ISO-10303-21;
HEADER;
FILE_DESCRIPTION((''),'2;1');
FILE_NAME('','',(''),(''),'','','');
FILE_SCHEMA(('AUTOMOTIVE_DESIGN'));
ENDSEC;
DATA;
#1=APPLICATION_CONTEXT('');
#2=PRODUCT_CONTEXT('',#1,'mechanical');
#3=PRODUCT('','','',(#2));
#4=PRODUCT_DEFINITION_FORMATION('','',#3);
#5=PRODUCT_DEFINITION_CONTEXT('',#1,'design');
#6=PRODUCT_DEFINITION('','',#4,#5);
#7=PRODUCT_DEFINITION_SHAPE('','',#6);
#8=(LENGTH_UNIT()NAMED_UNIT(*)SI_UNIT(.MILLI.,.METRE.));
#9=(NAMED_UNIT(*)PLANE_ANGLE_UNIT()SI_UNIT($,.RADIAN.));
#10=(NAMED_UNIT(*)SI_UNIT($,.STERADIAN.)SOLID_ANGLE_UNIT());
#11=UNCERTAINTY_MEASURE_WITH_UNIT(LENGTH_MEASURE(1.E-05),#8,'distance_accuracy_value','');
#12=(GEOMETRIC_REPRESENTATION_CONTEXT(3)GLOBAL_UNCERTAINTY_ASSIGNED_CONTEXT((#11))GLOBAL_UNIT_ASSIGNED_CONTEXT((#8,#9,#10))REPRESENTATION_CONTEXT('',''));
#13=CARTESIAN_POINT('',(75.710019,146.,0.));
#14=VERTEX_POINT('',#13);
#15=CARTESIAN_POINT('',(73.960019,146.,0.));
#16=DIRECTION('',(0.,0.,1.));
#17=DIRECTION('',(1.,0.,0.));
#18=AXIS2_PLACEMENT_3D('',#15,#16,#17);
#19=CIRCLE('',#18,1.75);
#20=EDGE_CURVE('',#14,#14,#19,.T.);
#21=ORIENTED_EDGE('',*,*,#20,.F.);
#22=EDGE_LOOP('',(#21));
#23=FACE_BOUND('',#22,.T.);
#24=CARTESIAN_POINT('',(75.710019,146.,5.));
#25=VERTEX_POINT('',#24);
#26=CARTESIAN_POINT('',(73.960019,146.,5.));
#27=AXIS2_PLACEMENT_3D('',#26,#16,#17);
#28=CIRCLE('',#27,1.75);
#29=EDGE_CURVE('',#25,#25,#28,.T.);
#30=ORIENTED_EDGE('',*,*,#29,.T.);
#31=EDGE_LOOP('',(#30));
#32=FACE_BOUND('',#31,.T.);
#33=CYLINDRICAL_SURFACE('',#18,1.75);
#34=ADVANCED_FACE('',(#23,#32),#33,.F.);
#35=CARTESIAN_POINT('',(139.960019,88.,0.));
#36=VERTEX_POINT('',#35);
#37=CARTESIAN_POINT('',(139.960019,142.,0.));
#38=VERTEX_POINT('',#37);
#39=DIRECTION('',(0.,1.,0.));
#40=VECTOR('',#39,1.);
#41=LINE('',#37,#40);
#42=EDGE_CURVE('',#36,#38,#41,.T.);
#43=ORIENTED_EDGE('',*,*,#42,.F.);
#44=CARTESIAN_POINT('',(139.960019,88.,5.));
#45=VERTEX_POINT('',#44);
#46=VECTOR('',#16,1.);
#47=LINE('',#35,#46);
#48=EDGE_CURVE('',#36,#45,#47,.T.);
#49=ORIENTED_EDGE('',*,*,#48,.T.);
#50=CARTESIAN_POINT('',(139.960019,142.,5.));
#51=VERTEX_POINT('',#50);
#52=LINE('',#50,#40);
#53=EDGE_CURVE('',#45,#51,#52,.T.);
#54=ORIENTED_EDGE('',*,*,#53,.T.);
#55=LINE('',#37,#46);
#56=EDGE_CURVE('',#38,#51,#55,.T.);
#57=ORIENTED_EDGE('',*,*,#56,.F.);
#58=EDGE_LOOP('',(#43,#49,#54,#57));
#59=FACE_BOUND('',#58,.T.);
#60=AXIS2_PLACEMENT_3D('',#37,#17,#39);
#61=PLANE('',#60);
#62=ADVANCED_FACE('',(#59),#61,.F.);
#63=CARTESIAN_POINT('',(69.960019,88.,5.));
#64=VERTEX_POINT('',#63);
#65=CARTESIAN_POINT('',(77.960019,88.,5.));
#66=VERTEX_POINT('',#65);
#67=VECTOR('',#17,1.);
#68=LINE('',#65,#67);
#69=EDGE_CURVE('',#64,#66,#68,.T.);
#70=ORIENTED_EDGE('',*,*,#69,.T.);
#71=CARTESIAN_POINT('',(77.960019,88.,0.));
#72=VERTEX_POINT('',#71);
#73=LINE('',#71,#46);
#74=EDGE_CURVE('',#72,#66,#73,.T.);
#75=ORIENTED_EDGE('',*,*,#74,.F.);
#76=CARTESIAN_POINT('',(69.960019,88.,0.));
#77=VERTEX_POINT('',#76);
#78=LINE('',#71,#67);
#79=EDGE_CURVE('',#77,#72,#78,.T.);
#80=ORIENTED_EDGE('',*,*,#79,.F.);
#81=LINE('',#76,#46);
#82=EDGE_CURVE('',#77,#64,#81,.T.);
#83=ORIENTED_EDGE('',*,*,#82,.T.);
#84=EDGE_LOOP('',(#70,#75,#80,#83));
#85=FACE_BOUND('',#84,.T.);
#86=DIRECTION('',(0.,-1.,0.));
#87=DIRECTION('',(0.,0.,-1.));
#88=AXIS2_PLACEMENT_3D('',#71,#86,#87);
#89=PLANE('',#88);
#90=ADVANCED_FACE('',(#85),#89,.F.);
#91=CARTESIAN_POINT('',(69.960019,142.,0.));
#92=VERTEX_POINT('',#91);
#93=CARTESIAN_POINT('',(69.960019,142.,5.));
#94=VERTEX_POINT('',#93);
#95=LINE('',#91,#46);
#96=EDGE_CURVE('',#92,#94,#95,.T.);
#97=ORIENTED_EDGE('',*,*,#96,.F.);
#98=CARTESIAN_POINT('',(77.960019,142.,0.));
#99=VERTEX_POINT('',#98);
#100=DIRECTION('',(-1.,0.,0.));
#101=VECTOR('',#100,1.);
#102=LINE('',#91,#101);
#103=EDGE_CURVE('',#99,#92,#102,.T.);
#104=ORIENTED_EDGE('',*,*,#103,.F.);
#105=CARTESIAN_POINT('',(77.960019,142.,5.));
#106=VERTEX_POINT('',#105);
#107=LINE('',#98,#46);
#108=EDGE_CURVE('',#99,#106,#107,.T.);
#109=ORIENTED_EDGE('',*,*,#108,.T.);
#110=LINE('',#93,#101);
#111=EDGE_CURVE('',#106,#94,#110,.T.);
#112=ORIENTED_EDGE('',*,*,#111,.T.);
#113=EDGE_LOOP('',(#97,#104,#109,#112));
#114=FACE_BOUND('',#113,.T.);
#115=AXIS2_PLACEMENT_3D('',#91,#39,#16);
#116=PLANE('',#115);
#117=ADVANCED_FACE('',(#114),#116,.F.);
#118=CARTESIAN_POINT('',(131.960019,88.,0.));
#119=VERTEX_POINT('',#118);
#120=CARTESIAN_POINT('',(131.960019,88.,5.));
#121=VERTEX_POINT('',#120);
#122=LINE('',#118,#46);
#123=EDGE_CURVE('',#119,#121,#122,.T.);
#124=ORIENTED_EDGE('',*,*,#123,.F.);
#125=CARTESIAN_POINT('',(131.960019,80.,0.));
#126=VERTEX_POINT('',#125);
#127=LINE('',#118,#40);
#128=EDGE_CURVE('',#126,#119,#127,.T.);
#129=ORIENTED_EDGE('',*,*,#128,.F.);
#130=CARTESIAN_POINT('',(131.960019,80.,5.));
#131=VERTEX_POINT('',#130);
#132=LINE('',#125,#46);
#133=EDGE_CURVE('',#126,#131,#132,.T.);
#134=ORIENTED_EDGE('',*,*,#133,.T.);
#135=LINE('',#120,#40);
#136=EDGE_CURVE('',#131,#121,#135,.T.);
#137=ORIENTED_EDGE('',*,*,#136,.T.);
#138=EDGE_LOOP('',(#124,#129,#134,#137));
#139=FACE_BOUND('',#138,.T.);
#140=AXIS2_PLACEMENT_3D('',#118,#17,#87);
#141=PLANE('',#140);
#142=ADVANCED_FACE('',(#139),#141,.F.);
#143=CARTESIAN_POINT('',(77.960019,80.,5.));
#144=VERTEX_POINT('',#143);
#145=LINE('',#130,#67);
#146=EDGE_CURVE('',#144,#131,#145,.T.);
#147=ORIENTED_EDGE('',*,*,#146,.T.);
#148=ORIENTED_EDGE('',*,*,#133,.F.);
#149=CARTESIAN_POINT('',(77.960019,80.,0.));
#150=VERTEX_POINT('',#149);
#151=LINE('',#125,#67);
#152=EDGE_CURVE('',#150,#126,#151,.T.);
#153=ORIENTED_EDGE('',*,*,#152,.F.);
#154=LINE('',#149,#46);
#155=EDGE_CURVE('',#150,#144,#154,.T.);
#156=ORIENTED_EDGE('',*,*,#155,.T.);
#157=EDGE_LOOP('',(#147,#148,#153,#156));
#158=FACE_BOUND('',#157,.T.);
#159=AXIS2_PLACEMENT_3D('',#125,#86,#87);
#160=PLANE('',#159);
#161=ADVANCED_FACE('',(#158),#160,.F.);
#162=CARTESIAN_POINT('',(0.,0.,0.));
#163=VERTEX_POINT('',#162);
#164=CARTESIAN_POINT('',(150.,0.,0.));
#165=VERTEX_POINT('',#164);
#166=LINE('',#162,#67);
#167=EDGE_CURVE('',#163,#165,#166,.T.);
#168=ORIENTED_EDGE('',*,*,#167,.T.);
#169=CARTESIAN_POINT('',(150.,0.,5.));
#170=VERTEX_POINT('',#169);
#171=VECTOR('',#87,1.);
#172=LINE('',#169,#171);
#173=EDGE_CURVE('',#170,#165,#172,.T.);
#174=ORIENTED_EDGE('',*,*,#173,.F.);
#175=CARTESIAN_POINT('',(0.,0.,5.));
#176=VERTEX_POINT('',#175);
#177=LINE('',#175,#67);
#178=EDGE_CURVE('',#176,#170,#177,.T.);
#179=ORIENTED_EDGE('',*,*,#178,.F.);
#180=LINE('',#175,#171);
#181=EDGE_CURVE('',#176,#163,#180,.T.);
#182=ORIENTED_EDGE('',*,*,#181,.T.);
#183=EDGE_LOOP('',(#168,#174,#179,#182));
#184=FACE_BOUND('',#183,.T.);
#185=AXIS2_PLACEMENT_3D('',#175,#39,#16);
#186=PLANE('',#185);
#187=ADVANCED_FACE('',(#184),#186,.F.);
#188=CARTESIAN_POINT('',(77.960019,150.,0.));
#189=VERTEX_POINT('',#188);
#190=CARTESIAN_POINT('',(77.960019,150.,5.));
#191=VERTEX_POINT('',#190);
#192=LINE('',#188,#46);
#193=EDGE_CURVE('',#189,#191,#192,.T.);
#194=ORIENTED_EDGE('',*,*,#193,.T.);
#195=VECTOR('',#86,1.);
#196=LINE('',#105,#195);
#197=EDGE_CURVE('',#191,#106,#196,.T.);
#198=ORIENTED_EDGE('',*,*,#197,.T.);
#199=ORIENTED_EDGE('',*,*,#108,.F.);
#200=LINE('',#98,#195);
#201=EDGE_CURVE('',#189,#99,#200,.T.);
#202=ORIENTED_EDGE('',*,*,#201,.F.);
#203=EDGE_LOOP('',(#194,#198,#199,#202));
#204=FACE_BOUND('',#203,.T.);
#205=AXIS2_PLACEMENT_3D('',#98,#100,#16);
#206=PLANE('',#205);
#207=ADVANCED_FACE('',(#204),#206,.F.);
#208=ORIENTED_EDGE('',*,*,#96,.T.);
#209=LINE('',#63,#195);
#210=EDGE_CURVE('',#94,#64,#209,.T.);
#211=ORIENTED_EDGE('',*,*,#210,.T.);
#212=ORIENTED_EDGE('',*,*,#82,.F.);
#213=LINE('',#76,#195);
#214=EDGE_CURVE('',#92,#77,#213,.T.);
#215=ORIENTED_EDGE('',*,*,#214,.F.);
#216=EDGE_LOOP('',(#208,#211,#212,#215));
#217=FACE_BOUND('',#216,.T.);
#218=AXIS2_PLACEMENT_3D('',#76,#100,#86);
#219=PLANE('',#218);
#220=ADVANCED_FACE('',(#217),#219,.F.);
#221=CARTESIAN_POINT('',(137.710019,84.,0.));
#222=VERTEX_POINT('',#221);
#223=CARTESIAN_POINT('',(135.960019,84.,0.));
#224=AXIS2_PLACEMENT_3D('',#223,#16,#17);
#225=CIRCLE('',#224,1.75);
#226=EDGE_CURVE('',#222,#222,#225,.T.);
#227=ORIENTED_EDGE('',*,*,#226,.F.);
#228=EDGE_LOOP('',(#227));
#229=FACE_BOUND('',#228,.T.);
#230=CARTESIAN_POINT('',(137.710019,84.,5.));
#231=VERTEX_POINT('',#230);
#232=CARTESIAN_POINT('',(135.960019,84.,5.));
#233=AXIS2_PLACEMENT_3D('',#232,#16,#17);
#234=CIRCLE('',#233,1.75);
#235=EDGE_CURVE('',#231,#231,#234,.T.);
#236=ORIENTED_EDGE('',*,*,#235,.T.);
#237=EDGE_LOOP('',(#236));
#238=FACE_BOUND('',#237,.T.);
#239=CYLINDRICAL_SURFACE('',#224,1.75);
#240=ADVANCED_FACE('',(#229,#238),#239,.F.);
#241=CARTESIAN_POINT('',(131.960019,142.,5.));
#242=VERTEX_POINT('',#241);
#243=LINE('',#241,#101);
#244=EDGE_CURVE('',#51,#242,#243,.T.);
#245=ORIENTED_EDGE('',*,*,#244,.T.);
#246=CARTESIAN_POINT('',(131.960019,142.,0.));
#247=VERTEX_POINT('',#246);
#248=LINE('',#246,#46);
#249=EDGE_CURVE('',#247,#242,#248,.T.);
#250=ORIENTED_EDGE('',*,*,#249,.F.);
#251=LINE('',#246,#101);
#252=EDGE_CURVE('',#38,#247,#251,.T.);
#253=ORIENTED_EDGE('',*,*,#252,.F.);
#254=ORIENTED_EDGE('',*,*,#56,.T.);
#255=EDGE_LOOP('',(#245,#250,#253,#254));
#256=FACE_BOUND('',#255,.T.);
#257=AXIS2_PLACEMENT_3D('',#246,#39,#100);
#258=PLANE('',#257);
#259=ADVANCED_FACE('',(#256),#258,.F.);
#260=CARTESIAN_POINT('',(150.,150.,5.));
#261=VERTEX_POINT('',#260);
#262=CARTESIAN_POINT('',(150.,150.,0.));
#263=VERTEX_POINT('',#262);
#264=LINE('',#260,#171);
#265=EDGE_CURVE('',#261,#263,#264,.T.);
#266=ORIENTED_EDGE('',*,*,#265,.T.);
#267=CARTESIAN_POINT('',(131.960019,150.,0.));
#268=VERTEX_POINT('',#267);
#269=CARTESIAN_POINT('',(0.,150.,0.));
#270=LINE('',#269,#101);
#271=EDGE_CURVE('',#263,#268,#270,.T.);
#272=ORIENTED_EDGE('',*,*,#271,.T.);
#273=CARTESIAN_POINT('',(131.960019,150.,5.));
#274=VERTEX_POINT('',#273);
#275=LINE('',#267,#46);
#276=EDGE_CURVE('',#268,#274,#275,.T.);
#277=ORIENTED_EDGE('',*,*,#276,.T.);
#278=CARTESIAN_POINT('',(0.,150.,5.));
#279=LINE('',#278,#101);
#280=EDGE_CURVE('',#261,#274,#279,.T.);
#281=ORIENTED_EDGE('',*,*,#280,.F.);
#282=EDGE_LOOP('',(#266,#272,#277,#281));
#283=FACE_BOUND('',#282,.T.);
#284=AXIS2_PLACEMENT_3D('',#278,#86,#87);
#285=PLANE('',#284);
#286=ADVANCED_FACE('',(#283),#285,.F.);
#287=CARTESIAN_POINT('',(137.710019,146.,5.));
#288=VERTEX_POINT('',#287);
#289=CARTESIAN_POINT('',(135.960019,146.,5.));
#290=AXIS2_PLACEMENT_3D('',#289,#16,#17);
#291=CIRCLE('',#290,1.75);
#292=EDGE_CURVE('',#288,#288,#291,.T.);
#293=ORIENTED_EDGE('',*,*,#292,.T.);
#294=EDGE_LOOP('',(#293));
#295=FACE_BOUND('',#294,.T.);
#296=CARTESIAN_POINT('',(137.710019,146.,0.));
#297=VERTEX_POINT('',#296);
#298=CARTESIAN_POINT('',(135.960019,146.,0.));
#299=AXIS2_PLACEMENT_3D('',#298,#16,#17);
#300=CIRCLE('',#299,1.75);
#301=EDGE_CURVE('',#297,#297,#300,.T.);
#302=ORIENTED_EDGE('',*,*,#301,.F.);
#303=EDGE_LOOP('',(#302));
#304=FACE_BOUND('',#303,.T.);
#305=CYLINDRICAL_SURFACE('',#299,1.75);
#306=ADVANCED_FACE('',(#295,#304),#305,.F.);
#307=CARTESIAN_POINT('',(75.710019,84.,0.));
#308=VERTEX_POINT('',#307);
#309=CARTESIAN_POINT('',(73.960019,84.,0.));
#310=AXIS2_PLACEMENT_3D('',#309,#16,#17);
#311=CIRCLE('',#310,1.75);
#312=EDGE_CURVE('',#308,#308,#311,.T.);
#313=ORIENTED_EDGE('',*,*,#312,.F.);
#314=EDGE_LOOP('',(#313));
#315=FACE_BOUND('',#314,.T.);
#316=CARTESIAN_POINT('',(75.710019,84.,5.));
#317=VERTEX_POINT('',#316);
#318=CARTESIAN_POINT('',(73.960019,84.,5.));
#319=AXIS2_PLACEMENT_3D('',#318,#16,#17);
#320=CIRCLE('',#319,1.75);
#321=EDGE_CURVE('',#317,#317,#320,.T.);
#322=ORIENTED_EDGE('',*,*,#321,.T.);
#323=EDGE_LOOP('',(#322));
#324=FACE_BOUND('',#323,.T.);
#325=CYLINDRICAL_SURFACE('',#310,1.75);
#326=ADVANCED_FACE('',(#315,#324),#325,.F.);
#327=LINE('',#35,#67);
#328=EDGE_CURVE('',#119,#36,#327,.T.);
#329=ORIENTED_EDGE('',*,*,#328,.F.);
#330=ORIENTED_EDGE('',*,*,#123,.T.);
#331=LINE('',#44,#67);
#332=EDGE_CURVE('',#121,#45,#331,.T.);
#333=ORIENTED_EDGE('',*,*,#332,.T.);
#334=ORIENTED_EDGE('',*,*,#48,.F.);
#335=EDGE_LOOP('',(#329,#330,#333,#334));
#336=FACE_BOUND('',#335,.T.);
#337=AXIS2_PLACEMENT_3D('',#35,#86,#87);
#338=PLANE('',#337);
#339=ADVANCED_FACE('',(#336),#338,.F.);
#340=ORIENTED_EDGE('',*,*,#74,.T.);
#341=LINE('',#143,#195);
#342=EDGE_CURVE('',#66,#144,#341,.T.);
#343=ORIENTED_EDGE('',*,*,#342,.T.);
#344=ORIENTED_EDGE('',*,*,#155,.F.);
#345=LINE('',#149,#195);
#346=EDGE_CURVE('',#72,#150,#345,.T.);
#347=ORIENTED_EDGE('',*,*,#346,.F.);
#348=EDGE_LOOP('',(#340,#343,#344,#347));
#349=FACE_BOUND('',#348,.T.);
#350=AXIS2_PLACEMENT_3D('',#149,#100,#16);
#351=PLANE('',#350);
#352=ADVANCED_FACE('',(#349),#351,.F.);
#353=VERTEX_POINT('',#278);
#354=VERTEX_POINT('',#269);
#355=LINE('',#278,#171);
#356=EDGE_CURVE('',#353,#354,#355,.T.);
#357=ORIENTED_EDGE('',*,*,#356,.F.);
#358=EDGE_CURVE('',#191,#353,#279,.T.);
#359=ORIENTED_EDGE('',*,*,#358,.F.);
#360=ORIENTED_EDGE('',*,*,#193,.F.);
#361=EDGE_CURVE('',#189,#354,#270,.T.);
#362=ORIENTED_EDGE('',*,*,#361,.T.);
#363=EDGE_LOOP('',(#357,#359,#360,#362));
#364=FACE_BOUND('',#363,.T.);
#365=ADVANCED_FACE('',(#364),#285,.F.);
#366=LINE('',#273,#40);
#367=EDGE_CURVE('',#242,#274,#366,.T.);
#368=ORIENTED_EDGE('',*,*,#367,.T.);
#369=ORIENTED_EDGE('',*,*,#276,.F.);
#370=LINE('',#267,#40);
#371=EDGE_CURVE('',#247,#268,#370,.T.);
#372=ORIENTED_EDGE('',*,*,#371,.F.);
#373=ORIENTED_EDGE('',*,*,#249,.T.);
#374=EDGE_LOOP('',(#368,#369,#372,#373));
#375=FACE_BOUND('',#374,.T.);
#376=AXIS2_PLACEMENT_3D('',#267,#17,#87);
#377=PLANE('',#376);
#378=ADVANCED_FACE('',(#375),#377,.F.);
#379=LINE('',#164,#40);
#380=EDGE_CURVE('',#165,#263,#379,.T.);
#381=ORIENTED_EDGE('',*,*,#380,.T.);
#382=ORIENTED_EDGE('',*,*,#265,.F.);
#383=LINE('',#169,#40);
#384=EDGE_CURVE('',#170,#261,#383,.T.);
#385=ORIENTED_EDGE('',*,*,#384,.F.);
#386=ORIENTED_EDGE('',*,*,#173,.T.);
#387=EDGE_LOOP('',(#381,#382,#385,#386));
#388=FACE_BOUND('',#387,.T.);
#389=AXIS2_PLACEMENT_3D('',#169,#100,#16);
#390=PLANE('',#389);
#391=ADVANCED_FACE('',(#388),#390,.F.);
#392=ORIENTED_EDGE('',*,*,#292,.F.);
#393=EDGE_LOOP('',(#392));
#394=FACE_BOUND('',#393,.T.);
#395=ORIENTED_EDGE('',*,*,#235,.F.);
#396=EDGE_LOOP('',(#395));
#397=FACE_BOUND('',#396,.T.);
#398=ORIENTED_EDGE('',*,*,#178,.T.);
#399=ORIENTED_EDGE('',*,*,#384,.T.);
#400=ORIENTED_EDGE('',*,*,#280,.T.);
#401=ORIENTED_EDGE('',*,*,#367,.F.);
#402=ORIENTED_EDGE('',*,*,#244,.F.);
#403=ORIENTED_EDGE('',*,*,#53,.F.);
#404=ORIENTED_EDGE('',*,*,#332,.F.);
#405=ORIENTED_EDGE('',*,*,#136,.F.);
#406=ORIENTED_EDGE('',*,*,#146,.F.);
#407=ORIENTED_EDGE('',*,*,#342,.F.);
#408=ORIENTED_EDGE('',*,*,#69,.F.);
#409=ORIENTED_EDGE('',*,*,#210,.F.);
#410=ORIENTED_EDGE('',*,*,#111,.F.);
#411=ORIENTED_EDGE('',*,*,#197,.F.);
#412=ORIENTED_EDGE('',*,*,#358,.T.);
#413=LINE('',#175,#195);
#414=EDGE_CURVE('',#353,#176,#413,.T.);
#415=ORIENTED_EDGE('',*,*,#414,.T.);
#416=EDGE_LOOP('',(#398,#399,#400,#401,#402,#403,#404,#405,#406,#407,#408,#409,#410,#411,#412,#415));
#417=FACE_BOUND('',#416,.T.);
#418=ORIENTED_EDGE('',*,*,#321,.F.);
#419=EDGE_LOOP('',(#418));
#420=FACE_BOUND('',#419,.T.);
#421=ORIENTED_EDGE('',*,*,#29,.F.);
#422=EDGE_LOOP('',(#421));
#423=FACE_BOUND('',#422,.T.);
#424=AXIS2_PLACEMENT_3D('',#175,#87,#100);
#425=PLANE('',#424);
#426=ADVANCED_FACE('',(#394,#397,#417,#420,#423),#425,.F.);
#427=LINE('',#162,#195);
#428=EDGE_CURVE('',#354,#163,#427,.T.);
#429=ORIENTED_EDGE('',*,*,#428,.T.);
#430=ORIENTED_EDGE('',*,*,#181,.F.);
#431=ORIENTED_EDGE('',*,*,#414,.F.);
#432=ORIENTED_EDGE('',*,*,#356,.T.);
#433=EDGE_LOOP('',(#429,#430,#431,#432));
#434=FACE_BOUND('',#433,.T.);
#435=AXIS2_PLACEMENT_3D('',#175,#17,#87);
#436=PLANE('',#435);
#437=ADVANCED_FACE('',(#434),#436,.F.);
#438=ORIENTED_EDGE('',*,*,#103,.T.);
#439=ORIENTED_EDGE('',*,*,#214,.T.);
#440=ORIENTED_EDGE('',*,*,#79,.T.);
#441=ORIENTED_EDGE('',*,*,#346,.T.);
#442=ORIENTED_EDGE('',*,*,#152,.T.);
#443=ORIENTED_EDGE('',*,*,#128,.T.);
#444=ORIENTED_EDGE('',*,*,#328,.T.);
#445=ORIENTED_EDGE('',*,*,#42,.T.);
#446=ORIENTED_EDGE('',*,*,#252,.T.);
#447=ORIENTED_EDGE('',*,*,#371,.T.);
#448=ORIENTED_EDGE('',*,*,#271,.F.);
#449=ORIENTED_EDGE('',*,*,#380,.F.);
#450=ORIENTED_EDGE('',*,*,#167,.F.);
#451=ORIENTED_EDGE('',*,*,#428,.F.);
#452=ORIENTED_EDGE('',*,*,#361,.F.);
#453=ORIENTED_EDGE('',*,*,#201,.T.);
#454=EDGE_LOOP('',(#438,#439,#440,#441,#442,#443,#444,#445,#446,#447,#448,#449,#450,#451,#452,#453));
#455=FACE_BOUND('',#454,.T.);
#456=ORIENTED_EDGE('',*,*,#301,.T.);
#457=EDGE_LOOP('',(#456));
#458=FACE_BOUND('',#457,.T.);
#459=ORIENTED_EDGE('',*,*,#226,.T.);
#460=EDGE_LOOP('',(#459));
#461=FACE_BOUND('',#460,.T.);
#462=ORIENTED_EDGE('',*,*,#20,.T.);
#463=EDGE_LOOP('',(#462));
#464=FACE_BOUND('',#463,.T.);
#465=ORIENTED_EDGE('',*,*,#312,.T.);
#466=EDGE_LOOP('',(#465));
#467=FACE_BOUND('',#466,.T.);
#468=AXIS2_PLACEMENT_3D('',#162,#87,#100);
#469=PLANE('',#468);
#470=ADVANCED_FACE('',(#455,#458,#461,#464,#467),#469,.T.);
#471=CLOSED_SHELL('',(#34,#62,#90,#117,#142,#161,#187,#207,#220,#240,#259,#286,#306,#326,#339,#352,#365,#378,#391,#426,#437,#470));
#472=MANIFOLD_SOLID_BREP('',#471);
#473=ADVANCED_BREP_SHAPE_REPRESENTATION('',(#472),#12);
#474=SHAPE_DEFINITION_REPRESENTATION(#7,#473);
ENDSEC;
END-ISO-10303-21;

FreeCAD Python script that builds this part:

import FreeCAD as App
import Part
import Sketcher
from FreeCAD import Vector

doc = App.newDocument("Part")
body = doc.addObject("PartDesign::Body", "Body")

# Sketch on XY plane
sketch1 = doc.addObject("Sketcher::SketchObject", "Sketch")
body.addObject(sketch1)
sketch1.AttachmentSupport = (doc.XY_Plane, [""])
sketch1.MapMode = "FlatFace"
sketch1.addGeometry([
    Part.LineSegment(Vector(0, 150, 0), Vector(0, 0, 0)),
    Part.LineSegment(Vector(0, 0, 0), Vector(150, 0, 0)),
    Part.LineSegment(Vector(150, 0, 0), Vector(150, 150, 0)),
    Part.LineSegment(Vector(150, 150, 0), Vector(0, 150, 0)),
], False)
sketch1.addConstraint([
    Sketcher.Constraint("Coincident", 0, 2, 1, 1),
    Sketcher.Constraint("Coincident", 1, 2, 2, 1),
    Sketcher.Constraint("Coincident", 2, 2, 3, 1),
    Sketcher.Constraint("Coincident", 3, 2, 0, 1),
    Sketcher.Constraint("Vertical", 0),
    Sketcher.Constraint("Horizontal", 1),
    Sketcher.Constraint("Vertical", 2),
    Sketcher.Constraint("Horizontal", 3),
    Sketcher.Constraint("Coincident", 0, 2, -1, 1),
    Sketcher.Constraint("Equal", 3, 0),
    Sketcher.Constraint("DistanceX", 1, 1, 1, 2, 150.0),
])
pad1 = doc.addObject("PartDesign::Pad", "Pad")
body.addObject(pad1)
pad1.Profile = sketch1
pad1.Length = 5

# Sketch on XY plane
sketch2 = doc.addObject("Sketcher::SketchObject", "Sketch001")
body.addObject(sketch2)
sketch2.AttachmentSupport = (doc.XY_Plane, [""])
sketch2.MapMode = "FlatFace"
sketch2.AttachmentOffset = App.Placement(Vector(0, 0, 5), App.Rotation())
sketch2.addGeometry([
    Part.Circle(Vector(74, 84, 0), Vector(0, 0, 1), 1.8),  # 0
    Part.Circle(Vector(74, 146, 0), Vector(0, 0, 1), 1.8),  # 1
    Part.Circle(Vector(136, 146, 0), Vector(0, 0, 1), 1.8),  # 2
    Part.Circle(Vector(136, 84, 0), Vector(0, 0, 1), 1.8),  # 3
    Part.LineSegment(Vector(132, 150, 0), Vector(78, 150, 0)),  # 4
    Part.LineSegment(Vector(78, 150, 0), Vector(78, 142, 0)),  # 5
    Part.LineSegment(Vector(78, 142, 0), Vector(70, 142, 0)),  # 6
    Part.LineSegment(Vector(70, 142, 0), Vector(70, 88, 0)),  # 7
    Part.LineSegment(Vector(70, 88, 0), Vector(78, 88, 0)),  # 8
    Part.LineSegment(Vector(78, 88, 0), Vector(78, 80, 0)),  # 9
    Part.LineSegment(Vector(78, 80, 0), Vector(132, 80, 0)),  # 10
    Part.LineSegment(Vector(132, 80, 0), Vector(132, 88, 0)),  # 11
    Part.LineSegment(Vector(132, 88, 0), Vector(140, 88, 0)),  # 12
    Part.LineSegment(Vector(140, 88, 0), Vector(140, 142, 0)),  # 13
    Part.LineSegment(Vector(140, 142, 0), Vector(132, 142, 0)),  # 14
    Part.LineSegment(Vector(132, 142, 0), Vector(132, 150, 0)),  # 15
], False)
sketch2.addConstraint([
    Sketcher.Constraint("Coincident", 4, 2, 5, 1),
    Sketcher.Constraint("Coincident", 5, 2, 6, 1),
    Sketcher.Constraint("Coincident", 6, 2, 7, 1),
    Sketcher.Constraint("Coincident", 7, 2, 8, 1),
    Sketcher.Constraint("Coincident", 8, 2, 9, 1),
    Sketcher.Constraint("Coincident", 9, 2, 10, 1),
    Sketcher.Constraint("Coincident", 10, 2, 11, 1),
    Sketcher.Constraint("Coincident", 11, 2, 12, 1),
    Sketcher.Constraint("Coincident", 12, 2, 13, 1),
    Sketcher.Constraint("Coincident", 13, 2, 14, 1),
    Sketcher.Constraint("Coincident", 14, 2, 15, 1),
    Sketcher.Constraint("Coincident", 15, 2, 4, 1),
    Sketcher.Constraint("Horizontal", 4),
    Sketcher.Constraint("Vertical", 5),
    Sketcher.Constraint("Horizontal", 6),
    Sketcher.Constraint("Vertical", 7),
    Sketcher.Constraint("Horizontal", 8),
    Sketcher.Constraint("Vertical", 9),
    Sketcher.Constraint("Horizontal", 10),
    Sketcher.Constraint("Vertical", 11),
    Sketcher.Constraint("Horizontal", 12),
    Sketcher.Constraint("Vertical", 13),
    Sketcher.Constraint("Horizontal", 14),
    Sketcher.Constraint("Vertical", 15),
    Sketcher.Constraint("Equal", 0, 1),
    Sketcher.Constraint("Equal", 1, 2),
    Sketcher.Constraint("Equal", 2, 3),
    Sketcher.Constraint("Horizontal", 1, 3, 2, 3),
    Sketcher.Constraint("Horizontal", 0, 3, 3, 3),
    Sketcher.Constraint("Horizontal", 8, 2, 11, 2),
    Sketcher.Constraint("Horizontal", 6, 2, 13, 2),
    Sketcher.Constraint("Vertical", 0, 3, 1, 3),
    Sketcher.Constraint("Vertical", 2, 3, 3, 3),
    Sketcher.Constraint("Vertical", 5, 2, 8, 2),
    Sketcher.Constraint("Vertical", 11, 2, 14, 2),
    Sketcher.Constraint("Equal", 8, 12),
    Sketcher.Constraint("Equal", 14, 5),
    Sketcher.Constraint("Equal", 10, 7),
    Sketcher.Constraint("Equal", 5, 9),
    Sketcher.Constraint("Diameter", 0, 3.5),
    Sketcher.Constraint("DistanceX", 4, 2, 4, 1, 54.0),
    Sketcher.Constraint("DistanceX", 6, 2, 6, 1, 8.0),
    Sketcher.Constraint("DistanceY", -1, 1, 0, 3, 84.0),
    Sketcher.Constraint("DistanceY", -1, 1, 1, 3, 146.0),
    Sketcher.Constraint("DistanceY", -1, 1, 4, 2, 150.0),
    Sketcher.Constraint("DistanceX", 1, 3, 2, 3, 62.0),
    Sketcher.Constraint("DistanceX", 1, 3, 4, 2, 4.0),
    Sketcher.Constraint("DistanceX", -1, 1, 0, 3, 73.960019),
])
pocket1 = doc.addObject("PartDesign::Pocket", "Pocket")
body.addObject(pocket1)
pocket1.Profile = sketch2
pocket1.Type = "ThroughAll"

doc.recompute()
